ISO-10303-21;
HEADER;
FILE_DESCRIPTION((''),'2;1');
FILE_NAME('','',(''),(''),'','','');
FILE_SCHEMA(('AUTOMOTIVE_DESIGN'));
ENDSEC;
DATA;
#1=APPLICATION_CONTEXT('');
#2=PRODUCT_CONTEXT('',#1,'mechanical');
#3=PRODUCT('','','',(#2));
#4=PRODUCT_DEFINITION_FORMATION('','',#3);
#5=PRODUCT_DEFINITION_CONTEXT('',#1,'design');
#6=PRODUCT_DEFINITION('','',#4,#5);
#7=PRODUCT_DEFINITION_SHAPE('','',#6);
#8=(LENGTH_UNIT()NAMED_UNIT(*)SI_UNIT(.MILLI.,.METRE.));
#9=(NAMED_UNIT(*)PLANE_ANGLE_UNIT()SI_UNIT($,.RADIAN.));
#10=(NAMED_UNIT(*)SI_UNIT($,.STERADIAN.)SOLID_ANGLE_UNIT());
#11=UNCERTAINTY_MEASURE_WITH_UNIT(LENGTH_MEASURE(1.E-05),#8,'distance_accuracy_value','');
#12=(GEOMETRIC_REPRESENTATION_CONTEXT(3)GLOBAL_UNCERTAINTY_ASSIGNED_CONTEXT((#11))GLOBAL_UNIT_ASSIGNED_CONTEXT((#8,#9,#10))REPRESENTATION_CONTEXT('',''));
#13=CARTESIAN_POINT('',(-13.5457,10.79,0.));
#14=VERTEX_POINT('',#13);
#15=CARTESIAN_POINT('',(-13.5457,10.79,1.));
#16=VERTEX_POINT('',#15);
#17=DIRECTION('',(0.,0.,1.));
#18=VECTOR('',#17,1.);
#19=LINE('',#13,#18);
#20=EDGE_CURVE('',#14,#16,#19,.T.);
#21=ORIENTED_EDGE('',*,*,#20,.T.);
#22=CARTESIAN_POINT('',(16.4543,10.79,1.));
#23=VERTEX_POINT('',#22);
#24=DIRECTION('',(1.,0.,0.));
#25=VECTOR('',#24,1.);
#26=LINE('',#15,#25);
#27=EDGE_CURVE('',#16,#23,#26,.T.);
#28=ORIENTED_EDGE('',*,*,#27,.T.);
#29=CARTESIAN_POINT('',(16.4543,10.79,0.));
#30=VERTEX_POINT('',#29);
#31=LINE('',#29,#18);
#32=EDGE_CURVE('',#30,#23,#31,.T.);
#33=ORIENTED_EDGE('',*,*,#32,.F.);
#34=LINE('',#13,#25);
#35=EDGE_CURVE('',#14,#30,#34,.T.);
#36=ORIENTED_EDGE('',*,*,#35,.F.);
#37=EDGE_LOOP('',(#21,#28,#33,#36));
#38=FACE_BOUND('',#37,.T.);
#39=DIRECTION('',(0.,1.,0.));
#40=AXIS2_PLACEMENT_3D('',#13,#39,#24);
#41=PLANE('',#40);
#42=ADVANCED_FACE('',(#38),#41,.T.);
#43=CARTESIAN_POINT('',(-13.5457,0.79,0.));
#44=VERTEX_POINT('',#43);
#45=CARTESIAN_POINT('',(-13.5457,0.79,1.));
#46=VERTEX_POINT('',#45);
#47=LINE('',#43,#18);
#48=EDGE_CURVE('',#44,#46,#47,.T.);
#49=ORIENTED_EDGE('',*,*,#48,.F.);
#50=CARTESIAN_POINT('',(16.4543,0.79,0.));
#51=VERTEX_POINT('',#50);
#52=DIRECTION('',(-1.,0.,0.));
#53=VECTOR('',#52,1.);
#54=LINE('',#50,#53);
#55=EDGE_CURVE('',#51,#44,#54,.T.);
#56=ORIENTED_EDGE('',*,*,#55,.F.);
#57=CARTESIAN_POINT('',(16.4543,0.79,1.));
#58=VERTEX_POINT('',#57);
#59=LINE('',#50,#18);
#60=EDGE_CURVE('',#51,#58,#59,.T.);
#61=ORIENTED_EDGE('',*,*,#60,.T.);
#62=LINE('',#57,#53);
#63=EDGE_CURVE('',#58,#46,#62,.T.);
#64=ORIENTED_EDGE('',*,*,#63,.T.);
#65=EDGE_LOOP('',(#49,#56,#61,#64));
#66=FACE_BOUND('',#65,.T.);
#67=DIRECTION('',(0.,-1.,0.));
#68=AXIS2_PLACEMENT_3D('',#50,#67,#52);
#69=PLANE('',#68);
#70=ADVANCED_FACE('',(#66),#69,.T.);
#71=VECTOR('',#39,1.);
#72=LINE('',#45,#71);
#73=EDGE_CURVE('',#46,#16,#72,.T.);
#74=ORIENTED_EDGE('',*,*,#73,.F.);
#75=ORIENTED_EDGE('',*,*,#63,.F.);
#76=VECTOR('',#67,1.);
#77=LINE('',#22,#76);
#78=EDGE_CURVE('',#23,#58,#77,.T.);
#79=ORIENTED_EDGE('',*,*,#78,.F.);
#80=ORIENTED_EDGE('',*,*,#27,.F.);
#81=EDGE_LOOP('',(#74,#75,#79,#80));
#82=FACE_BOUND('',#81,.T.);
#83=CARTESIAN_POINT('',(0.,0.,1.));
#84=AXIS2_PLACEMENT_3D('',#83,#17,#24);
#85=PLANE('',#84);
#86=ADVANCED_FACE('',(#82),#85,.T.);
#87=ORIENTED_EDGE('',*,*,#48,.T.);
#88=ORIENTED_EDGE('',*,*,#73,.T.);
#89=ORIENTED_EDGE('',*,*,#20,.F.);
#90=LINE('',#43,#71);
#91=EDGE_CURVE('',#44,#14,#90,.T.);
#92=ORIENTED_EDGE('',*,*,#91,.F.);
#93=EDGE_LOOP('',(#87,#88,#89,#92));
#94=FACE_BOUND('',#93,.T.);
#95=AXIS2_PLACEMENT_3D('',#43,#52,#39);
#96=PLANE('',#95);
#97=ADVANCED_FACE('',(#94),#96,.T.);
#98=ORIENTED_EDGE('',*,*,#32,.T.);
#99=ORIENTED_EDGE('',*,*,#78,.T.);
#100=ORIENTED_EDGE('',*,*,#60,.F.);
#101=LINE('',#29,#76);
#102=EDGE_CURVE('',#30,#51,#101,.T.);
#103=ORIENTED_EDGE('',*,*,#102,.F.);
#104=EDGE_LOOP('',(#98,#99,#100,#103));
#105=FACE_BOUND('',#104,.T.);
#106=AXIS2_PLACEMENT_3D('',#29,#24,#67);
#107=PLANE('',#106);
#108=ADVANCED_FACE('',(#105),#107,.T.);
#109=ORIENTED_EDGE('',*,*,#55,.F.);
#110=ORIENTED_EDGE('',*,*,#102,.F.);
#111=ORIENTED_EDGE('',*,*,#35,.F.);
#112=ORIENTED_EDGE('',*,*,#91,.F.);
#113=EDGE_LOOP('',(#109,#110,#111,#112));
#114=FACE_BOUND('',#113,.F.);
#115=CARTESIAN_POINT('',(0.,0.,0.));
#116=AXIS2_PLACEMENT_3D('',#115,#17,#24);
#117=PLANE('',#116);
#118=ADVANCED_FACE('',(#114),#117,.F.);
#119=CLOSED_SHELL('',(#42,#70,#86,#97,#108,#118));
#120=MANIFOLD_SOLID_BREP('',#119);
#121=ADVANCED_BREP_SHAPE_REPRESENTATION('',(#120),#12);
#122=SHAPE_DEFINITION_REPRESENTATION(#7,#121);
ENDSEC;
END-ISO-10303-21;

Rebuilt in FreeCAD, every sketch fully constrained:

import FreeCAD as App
import Part
import Sketcher
Q = App.Units.Quantity


def add_polygon(sketch, points):
    """Adds a closed chain of lines whose ends are joined by coincident constraints."""
    first, n = sketch.GeometryCount, len(points)
    for a, b in zip(points, points[1:] + points[:1]):
        sketch.addGeometry(Part.LineSegment(App.Vector(*a, 0), App.Vector(*b, 0)), False)
    for i in range(n):
        sketch.addConstraint(Sketcher.Constraint("Coincident", first + i, 2, first + (i + 1) % n, 1))

doc = App.newDocument("Part")
body = doc.addObject("PartDesign::Body", "Body")

# Sketch on XY plane
sketch1 = body.newObject("Sketcher::SketchObject", "Sketch")
sketch1.AttachmentSupport = (doc.getObject("XY_Plane"), [""])
sketch1.MapMode = "FlatFace"
add_polygon(sketch1, [(16.4543, 10.79), (-13.5457, 10.79), (-13.5457, 0.79), (16.4543, 0.79)])  # lines 0-3
sketch1.addConstraint([
    Sketcher.Constraint("Horizontal", 0),
    Sketcher.Constraint("Vertical", 1),
    Sketcher.Constraint("Horizontal", 2),
    Sketcher.Constraint("Vertical", 3),
    Sketcher.Constraint("DistanceX", 0, 2, 0, 1, Q("30 mm")),
    Sketcher.Constraint("DistanceY", 1, 2, 1, 1, Q("10 mm")),
    Sketcher.Constraint("DistanceY", -1, 1, 0, 2, Q("10.79 mm")),
    Sketcher.Constraint("DistanceX", 0, 2, -1, 1, Q("13.5457 mm")),
])
pad1 = body.newObject("PartDesign::Pad", "Pad")
pad1.Profile = sketch1
pad1.Length = 1

doc.recompute()
